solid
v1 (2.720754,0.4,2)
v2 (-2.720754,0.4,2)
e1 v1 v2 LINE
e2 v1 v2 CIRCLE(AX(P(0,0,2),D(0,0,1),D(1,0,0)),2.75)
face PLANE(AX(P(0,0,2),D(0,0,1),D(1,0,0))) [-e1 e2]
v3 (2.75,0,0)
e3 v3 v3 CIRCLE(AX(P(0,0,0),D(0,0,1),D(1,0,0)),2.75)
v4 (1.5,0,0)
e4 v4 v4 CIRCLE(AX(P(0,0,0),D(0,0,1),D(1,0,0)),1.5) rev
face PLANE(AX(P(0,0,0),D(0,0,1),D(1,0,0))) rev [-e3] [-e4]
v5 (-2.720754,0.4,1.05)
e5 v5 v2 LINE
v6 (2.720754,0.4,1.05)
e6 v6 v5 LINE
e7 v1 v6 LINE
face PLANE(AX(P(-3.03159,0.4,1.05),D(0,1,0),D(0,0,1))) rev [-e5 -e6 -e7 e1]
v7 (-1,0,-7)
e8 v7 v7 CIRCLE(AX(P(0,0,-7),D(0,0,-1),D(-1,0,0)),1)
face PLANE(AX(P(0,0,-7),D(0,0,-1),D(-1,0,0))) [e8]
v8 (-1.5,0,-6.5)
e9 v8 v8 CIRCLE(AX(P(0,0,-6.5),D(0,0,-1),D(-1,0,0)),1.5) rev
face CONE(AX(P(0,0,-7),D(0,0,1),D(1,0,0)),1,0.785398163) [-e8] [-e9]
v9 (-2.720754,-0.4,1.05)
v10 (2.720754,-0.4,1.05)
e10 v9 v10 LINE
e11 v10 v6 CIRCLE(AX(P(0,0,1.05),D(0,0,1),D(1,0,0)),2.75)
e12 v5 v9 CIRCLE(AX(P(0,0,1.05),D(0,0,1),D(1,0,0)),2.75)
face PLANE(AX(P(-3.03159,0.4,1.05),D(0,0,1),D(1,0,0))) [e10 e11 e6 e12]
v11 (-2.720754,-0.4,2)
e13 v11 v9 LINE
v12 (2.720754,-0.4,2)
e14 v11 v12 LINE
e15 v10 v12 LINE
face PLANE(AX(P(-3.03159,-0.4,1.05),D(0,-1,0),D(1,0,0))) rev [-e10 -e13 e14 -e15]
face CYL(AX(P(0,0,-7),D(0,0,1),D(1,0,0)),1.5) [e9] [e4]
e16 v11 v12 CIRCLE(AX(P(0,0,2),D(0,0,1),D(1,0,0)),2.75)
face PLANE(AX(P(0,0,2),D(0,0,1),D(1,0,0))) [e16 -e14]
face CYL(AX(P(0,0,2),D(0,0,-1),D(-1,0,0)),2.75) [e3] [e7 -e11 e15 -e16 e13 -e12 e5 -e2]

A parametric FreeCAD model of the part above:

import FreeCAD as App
import Part
import Sketcher

V = App.Vector
Q = App.Units.Quantity


def edges_at(feature, points):
    """Names of the edges that pass closest to the given points."""
    edges = feature.Shape.Edges
    near = lambda p: min(range(len(edges)), key=lambda i: edges[i].distToShape(Part.Vertex(*p))[0])
    return sorted({f"Edge{near(p) + 1}" for p in points})


def add_polygon(sketch, points):
    """Adds a closed chain of lines whose ends are joined by coincident constraints."""
    first, n = sketch.GeometryCount, len(points)
    for a, b in zip(points, points[1:] + points[:1]):
        sketch.addGeometry(Part.LineSegment(App.Vector(*a, 0), App.Vector(*b, 0)), False)
    for i in range(n):
        sketch.addConstraint(Sketcher.Constraint("Coincident", first + i, 2, first + (i + 1) % n, 1))

doc = App.newDocument("Part")
params = doc.addObject("Spreadsheet::Sheet", "Params")
for row, (alias, value) in enumerate([
    ("sketch1_diameter", "5.5 mm"),
    ("pad1_length", "2 mm"),
    ("sketch2_diameter", "3 mm"),
    ("pad2_length", "7 mm"),
    ("sketch3_height", "0.8 mm"),
    ("pocket1_length", "0.95 mm"),
    ("chamfer_size", "0.5 mm"),
], start=1):
    params.set(f"A{row}", alias)
    params.set(f"B{row}", "=" + value)
    params.setAlias(f"B{row}", alias)

body = doc.addObject("PartDesign::Body", "Body")

# Sketch on XY plane
sketch1 = doc.addObject("Sketcher::SketchObject", "Sketch")
body.addObject(sketch1)
sketch1.AttachmentSupport = (doc.XY_Plane, [""])
sketch1.MapMode = "FlatFace"
sketch1.addGeometry(Part.Circle(V(0, 0, 0), V(0, 0, 1), 2.8), False)
sketch1.addConstraint([
    Sketcher.Constraint("Coincident", 0, 3, -1, 1),
    Sketcher.Constraint("Diameter", 0, Q("5.5 mm")),
])
sketch1.setExpression("Constraints[1]", "Params.sketch1_diameter")
pad1 = doc.addObject("PartDesign::Pad", "Pad")
body.addObject(pad1)
pad1.Profile = sketch1
pad1.setExpression("Length", "Params.pad1_length")

# Sketch on XY plane
sketch2 = doc.addObject("Sketcher::SketchObject", "Sketch001")
body.addObject(sketch2)
sketch2.AttachmentSupport = (doc.XY_Plane, [""])
sketch2.MapMode = "FlatFace"
sketch2.addGeometry(Part.Circle(V(0, 0, 0), V(0, 0, 1), 1.5), False)
sketch2.addConstraint([
    Sketcher.Constraint("Coincident", 0, 3, -1, 1),
    Sketcher.Constraint("Diameter", 0, Q("3 mm")),
])
sketch2.setExpression("Constraints[1]", "Params.sketch2_diameter")
pad2 = doc.addObject("PartDesign::Pad", "Pad001")
body.addObject(pad2)
pad2.Profile = sketch2
pad2.setExpression("Length", "Params.pad2_length")
pad2.Reversed = True

# Sketch on XY plane
sketch3 = doc.addObject("Sketcher::SketchObject", "Sketch002")
body.addObject(sketch3)
sketch3.AttachmentSupport = (doc.XY_Plane, [""])
sketch3.MapMode = "FlatFace"
sketch3.AttachmentOffset = App.Placement(V(0, 0, 2), App.Rotation())
add_polygon(sketch3, [(-3, 0.4), (-3, -0.4), (3, -0.4), (3, 0.4)])  # lines 0-3
sketch3.addConstraint([
    Sketcher.Constraint("Vertical", 0),
    Sketcher.Constraint("Horizontal", 1),
    Sketcher.Constraint("Vertical", 2),
    Sketcher.Constraint("Horizontal", 3),
    Sketcher.Constraint("DistanceY", 0, 2, 0, 1, Q("0.8 mm")),
    Sketcher.Constraint("DistanceY", 0, 2, -1, 1, Q("0.4 mm")),
    Sketcher.Constraint("DistanceX", 1, 1, 1, 2, Q("6.034936 mm")),
    Sketcher.Constraint("DistanceX", 0, 2, -1, 1, Q("3.03159 mm")),
])
sketch3.setExpression("Constraints[8]", "Params.sketch3_height")
pocket1 = doc.addObject("PartDesign::Pocket", "Pocket")
body.addObject(pocket1)
pocket1.Profile = sketch3
pocket1.setExpression("Length", "Params.pocket1_length")
doc.recompute()

chamfer = doc.addObject("PartDesign::Chamfer", "Chamfer")
body.addObject(chamfer)
chamfer.Base = (pocket1, edges_at(pocket1, [(-1.5, 0, -7)]))
chamfer.setExpression("Size", "Params.chamfer_size")

doc.recompute()
